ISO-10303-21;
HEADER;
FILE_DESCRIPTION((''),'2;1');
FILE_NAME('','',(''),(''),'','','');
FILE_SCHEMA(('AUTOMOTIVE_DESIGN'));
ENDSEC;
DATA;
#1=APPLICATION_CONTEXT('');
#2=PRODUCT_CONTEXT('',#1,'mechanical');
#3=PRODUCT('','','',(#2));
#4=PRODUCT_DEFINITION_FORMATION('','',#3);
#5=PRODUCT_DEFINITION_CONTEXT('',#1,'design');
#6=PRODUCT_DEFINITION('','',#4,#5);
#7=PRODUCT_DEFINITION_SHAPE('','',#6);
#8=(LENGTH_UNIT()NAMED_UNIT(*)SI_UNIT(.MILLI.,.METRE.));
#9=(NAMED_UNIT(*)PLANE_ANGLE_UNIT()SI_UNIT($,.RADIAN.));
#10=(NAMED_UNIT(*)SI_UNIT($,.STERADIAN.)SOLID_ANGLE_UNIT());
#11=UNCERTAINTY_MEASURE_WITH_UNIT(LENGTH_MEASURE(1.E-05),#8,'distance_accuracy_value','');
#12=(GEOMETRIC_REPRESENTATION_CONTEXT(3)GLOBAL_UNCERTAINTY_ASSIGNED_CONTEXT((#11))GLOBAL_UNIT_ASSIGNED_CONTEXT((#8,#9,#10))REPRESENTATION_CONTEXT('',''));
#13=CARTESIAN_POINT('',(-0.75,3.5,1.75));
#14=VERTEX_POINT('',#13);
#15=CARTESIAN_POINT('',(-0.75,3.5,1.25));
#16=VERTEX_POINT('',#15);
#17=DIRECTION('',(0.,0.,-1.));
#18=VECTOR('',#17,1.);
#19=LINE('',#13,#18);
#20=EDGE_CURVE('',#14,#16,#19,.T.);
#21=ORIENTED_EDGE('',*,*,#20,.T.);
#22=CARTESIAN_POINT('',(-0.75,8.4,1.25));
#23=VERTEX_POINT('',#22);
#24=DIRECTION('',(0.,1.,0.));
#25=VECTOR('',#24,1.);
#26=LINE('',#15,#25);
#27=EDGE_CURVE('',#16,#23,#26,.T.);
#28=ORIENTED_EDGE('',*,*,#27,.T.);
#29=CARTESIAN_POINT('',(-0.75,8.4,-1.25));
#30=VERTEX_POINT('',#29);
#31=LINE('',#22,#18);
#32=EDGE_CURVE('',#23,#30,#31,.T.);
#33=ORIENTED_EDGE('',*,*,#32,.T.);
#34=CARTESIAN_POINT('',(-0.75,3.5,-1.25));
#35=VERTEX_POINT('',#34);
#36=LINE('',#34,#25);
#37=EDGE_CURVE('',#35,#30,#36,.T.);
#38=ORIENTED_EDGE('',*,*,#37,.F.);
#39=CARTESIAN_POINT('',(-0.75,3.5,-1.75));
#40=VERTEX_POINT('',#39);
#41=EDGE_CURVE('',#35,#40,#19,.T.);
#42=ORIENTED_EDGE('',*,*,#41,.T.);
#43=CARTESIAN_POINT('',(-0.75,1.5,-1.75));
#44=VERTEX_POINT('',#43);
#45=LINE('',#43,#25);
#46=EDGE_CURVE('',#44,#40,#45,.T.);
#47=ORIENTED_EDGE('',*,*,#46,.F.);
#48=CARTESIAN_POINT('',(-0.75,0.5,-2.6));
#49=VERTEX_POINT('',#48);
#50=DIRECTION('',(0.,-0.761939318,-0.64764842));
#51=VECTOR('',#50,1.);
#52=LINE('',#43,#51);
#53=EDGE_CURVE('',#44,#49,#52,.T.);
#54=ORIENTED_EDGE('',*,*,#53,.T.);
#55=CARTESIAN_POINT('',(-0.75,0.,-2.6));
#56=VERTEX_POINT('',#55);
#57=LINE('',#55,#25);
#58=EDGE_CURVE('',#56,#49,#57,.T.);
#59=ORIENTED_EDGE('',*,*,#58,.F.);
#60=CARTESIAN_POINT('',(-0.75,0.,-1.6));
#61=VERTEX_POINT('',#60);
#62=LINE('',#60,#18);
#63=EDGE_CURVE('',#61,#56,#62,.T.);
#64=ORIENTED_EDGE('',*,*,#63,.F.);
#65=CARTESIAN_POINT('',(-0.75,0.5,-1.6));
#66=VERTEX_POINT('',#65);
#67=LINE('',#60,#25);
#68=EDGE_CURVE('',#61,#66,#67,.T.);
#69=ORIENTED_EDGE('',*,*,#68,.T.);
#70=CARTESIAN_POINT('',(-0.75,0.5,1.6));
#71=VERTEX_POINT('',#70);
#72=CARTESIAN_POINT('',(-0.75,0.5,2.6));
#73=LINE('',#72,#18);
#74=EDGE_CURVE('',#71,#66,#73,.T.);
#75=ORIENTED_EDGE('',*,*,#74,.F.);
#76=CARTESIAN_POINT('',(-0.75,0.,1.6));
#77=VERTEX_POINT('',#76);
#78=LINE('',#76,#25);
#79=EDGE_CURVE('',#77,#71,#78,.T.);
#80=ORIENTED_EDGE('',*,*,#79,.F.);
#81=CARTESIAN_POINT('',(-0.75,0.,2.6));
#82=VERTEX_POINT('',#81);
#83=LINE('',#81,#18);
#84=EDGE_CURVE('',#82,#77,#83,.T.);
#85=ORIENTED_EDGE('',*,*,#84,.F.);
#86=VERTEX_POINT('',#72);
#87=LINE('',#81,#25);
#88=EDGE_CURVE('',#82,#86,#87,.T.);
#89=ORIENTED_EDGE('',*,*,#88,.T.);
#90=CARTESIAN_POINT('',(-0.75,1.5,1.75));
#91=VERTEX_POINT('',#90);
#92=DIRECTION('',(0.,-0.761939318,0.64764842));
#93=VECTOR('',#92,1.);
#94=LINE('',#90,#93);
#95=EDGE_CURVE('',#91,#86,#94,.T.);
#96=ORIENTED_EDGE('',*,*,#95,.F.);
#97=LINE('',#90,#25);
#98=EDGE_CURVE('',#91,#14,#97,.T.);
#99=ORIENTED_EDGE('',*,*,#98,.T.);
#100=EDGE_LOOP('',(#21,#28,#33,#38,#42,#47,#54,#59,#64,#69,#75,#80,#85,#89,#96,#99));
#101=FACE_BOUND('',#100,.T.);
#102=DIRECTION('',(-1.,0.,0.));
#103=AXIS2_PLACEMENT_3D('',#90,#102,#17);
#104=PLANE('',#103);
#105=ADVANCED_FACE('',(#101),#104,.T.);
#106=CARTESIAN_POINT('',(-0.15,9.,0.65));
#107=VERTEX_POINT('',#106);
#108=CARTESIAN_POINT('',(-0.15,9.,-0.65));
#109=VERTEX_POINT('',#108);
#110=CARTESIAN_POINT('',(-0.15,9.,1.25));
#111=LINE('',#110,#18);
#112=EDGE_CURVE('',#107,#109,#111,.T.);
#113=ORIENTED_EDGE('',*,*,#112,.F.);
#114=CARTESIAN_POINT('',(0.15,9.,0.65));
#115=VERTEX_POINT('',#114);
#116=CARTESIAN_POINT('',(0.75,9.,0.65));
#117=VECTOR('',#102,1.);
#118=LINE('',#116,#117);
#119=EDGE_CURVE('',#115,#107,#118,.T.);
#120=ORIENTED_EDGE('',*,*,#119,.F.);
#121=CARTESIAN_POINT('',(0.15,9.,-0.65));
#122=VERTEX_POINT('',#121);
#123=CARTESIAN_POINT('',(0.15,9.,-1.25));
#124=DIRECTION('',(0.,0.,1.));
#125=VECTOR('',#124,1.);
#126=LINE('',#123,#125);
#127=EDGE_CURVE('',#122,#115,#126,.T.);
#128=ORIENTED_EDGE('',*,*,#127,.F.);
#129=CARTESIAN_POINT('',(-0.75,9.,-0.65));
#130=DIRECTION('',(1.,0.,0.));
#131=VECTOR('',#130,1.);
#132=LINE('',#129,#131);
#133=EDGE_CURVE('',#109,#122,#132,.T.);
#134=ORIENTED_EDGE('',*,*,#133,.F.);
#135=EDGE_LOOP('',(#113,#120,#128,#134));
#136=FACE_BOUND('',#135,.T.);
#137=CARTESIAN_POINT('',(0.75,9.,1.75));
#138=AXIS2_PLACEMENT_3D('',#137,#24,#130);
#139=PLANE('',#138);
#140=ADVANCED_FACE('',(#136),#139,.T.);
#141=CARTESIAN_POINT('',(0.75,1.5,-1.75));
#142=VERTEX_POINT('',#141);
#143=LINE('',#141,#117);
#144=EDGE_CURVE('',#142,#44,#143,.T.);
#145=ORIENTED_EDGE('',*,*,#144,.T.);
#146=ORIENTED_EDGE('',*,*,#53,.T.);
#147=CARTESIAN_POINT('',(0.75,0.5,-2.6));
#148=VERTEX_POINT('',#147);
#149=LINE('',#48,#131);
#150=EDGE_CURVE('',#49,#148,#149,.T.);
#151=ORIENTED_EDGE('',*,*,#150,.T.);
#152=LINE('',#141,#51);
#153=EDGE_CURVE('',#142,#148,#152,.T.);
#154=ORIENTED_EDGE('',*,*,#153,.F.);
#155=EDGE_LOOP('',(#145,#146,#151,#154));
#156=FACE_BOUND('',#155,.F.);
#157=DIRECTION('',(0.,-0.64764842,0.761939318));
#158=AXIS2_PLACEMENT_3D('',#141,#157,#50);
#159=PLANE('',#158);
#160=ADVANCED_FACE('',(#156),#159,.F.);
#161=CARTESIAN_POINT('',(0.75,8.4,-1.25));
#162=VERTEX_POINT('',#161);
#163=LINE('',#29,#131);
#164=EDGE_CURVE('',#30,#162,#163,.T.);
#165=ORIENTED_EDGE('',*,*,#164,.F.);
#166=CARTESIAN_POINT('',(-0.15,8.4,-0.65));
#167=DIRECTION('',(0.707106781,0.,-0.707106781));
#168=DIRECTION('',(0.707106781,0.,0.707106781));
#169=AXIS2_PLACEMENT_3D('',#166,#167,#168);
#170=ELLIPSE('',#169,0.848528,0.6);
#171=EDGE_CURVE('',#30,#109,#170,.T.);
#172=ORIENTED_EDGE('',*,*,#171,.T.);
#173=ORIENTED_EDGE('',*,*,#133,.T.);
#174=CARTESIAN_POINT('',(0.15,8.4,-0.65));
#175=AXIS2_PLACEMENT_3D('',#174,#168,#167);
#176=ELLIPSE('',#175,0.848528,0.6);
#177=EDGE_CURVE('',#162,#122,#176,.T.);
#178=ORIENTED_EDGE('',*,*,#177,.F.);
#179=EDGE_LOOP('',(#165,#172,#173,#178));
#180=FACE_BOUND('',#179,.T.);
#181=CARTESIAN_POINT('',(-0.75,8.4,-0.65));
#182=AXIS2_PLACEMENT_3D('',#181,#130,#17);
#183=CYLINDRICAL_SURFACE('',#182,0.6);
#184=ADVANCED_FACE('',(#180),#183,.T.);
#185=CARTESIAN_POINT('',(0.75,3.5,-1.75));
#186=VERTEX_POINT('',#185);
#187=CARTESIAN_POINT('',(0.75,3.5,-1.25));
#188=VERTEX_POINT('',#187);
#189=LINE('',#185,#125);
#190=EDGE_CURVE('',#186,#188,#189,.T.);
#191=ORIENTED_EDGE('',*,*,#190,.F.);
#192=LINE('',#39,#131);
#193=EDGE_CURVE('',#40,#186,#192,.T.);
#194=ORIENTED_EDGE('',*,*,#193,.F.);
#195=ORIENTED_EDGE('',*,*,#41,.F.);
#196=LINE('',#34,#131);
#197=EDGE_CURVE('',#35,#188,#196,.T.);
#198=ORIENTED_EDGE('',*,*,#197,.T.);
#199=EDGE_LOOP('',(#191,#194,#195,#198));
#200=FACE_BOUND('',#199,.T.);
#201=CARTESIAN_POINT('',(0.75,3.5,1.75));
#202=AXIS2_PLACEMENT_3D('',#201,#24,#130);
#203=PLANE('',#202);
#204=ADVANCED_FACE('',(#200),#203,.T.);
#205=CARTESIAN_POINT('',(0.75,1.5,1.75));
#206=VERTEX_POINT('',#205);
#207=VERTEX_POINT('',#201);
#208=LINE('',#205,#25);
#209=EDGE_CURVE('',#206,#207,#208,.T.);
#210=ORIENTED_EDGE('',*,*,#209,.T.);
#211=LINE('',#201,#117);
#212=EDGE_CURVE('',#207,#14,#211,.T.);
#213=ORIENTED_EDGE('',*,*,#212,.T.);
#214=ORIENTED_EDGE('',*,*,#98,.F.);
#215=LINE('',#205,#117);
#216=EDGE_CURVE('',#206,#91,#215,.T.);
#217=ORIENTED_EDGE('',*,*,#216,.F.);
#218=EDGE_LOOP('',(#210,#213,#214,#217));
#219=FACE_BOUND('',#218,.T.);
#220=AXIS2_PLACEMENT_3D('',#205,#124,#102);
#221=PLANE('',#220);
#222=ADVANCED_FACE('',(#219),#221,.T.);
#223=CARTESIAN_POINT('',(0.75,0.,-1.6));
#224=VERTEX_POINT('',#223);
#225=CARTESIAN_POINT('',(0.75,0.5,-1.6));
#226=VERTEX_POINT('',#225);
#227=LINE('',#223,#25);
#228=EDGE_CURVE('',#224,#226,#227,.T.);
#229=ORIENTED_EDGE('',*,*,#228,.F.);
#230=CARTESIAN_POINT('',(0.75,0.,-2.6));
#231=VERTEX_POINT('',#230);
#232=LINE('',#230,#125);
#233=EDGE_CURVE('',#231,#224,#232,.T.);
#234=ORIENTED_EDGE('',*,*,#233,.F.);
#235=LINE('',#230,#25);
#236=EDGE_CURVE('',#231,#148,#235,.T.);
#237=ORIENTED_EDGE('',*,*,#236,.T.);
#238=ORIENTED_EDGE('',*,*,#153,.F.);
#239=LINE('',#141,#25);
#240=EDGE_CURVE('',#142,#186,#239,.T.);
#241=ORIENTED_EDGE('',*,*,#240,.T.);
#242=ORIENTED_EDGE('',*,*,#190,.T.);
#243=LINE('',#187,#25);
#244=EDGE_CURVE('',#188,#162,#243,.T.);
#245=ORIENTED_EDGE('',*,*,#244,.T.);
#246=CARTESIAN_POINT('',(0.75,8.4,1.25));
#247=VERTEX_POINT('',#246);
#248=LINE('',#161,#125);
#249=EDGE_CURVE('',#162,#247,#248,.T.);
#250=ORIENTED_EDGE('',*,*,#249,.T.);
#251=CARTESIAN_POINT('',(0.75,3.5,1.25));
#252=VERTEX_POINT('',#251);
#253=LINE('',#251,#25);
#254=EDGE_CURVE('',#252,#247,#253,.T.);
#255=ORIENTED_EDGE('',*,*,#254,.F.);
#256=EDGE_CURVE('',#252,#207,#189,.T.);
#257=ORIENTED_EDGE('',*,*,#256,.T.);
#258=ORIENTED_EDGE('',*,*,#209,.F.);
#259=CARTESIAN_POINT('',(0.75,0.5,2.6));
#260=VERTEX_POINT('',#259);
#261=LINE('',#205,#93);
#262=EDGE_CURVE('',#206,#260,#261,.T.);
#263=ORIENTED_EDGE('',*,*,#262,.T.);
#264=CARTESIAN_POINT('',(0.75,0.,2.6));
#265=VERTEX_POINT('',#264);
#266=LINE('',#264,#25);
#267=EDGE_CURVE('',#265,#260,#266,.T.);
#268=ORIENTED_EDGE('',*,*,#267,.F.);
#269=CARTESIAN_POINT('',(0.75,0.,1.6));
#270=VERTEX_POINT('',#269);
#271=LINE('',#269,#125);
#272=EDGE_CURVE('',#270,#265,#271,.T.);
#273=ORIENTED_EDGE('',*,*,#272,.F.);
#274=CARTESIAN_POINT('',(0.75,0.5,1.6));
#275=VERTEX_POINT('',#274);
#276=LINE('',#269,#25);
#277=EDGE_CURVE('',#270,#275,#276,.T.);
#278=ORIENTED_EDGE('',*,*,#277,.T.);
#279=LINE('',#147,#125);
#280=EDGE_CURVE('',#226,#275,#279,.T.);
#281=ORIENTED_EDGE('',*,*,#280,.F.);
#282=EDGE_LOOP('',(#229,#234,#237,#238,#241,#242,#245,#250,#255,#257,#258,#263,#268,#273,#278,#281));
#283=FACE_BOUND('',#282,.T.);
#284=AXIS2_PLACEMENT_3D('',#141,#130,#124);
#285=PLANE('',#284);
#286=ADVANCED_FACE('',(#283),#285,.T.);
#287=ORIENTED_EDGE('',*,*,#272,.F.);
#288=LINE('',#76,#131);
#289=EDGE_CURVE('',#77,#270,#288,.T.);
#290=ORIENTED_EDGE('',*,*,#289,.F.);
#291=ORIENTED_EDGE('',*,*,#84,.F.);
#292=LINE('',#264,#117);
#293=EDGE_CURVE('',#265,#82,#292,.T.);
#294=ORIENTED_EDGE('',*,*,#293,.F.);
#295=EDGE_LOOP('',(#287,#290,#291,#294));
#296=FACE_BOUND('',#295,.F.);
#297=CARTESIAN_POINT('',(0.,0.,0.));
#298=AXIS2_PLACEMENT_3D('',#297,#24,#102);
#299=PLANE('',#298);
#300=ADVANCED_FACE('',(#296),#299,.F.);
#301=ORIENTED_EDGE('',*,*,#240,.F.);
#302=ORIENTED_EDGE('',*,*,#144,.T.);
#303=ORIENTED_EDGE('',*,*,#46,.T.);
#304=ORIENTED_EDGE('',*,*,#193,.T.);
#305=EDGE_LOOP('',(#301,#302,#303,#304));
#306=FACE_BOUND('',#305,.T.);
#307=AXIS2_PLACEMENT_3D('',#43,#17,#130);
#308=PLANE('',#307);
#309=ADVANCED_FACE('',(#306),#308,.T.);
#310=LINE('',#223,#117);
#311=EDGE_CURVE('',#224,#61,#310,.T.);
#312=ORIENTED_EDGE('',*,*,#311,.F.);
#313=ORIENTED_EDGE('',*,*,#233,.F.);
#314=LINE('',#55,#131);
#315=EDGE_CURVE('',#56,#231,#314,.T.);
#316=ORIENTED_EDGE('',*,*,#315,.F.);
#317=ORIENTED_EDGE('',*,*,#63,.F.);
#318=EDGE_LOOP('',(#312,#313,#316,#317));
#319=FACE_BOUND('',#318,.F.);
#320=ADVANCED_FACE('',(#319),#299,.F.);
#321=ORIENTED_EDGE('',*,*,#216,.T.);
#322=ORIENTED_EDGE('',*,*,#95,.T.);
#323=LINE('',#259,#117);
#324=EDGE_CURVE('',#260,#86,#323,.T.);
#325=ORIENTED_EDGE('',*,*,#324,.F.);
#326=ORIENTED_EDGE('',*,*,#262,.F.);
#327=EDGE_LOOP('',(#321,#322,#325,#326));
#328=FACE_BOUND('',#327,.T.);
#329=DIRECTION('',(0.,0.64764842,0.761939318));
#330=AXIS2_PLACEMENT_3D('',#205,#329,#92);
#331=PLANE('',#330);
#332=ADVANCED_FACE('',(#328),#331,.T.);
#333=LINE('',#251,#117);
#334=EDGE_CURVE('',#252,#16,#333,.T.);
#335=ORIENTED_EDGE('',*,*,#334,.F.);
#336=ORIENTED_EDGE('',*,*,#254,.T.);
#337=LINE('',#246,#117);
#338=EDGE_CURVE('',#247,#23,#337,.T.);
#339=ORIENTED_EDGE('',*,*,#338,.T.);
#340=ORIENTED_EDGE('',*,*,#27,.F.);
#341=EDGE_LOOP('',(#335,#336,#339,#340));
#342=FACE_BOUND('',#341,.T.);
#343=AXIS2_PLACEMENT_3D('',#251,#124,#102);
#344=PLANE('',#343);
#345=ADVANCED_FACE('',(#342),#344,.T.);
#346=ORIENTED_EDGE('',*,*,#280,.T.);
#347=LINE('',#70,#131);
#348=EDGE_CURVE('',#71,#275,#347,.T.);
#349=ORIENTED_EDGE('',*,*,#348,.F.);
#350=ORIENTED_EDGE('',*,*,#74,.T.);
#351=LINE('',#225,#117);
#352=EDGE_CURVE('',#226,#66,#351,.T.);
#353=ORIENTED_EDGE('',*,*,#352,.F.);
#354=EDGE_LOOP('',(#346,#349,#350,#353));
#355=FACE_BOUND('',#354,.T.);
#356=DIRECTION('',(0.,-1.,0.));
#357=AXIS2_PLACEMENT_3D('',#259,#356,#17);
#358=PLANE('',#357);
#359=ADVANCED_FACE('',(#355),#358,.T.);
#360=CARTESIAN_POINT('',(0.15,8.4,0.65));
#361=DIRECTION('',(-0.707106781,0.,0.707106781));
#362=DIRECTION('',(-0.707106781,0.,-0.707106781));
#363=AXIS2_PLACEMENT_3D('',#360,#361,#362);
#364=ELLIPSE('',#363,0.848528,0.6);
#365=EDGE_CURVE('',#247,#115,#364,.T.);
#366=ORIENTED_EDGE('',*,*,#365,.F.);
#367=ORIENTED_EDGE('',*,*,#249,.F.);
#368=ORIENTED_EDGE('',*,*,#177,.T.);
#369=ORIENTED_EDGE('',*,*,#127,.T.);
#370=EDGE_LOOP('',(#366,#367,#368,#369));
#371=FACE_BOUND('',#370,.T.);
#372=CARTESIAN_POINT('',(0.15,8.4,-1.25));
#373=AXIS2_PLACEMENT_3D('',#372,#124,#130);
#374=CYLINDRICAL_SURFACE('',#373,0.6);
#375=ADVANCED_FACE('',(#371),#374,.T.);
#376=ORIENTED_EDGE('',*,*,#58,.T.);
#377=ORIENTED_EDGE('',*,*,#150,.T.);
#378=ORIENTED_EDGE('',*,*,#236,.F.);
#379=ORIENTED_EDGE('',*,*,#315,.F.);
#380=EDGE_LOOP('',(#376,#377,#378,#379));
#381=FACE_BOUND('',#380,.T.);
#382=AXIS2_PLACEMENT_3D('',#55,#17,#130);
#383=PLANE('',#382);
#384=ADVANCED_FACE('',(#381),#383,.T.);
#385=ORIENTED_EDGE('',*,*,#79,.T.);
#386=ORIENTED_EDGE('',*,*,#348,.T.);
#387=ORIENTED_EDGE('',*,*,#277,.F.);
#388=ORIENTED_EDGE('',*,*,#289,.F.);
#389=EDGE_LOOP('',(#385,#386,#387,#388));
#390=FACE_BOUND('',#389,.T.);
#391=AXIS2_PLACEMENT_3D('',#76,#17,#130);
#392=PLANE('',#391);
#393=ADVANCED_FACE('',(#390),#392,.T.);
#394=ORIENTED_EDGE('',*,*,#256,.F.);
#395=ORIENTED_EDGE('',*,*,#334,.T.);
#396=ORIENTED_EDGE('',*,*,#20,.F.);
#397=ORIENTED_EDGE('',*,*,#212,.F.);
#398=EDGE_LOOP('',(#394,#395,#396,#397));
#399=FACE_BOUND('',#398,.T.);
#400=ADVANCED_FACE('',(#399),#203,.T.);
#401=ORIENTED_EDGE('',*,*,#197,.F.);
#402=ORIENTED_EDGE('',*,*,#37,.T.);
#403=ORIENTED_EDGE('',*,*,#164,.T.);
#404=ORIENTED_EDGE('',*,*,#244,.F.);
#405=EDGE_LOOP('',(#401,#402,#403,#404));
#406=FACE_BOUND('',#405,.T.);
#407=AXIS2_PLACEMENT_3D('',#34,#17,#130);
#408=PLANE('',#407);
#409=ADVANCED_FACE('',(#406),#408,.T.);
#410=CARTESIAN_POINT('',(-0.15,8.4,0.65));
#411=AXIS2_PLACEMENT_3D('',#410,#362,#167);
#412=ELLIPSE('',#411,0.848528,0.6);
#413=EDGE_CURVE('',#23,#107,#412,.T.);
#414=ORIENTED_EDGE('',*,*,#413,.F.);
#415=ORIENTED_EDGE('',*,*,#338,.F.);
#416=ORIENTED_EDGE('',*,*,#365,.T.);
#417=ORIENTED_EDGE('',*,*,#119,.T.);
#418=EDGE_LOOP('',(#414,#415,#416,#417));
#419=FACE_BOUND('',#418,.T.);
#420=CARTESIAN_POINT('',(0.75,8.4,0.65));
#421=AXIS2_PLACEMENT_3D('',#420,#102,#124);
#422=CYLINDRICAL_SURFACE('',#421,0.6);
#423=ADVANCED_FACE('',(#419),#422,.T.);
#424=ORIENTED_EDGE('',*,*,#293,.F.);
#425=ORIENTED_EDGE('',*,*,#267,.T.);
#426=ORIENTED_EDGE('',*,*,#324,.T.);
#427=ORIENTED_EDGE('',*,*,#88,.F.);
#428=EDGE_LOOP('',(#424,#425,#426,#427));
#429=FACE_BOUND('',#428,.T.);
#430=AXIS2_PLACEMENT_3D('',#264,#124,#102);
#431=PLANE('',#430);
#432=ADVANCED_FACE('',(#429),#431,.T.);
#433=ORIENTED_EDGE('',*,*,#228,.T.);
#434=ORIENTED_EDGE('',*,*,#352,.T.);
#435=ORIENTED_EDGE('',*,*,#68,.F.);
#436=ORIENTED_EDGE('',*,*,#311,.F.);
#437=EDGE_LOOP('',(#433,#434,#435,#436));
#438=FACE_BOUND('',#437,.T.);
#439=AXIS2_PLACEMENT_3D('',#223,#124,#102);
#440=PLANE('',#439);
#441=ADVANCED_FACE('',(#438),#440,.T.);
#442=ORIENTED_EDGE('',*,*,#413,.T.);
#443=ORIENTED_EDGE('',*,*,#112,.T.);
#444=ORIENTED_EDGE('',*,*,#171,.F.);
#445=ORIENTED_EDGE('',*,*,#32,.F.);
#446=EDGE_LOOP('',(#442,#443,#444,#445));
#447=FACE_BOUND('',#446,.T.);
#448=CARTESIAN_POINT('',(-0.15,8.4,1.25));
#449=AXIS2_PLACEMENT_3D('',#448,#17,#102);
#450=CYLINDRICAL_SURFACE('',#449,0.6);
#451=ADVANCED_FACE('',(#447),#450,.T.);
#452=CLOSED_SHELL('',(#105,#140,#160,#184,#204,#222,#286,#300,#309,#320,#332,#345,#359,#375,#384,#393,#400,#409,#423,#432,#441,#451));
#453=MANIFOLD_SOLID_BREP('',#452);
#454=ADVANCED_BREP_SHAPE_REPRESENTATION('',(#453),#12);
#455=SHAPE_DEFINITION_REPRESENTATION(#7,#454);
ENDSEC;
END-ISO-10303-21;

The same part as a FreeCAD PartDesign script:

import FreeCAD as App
import Part
import Sketcher

V = App.Vector
Q = App.Units.Quantity


def edges_at(feature, points):
    """Names of the edges that pass closest to the given points."""
    edges = feature.Shape.Edges
    near = lambda p: min(range(len(edges)), key=lambda i: edges[i].distToShape(Part.Vertex(*p))[0])
    return sorted({f"Edge{near(p) + 1}" for p in points})


def add_polygon(sketch, points):
    """Adds a closed chain of lines whose ends are joined by coincident constraints."""
    first, n = sketch.GeometryCount, len(points)
    for a, b in zip(points, points[1:] + points[:1]):
        sketch.addGeometry(Part.LineSegment(App.Vector(*a, 0), App.Vector(*b, 0)), False)
    for i in range(n):
        sketch.addConstraint(Sketcher.Constraint("Coincident", first + i, 2, first + (i + 1) % n, 1))

doc = App.newDocument("Part")
body = doc.addObject("PartDesign::Body", "Body")
body.AllowCompound = True

# Sketch on XZ plane
sketch1 = body.newObject("Sketcher::SketchObject", "Sketch")
sketch1.AttachmentSupport = (doc.getObject("XZ_Plane"), [""])
sketch1.MapMode = "FlatFace"
add_polygon(sketch1, [(-0.8, -1.6), (0.8, -1.6), (0.8, -2.6), (-0.8, -2.6)])  # lines 0-3
add_polygon(sketch1, [(0.8, 2.6), (0.8, 1.6), (-0.8, 1.6), (-0.8, 2.6)])  # lines 4-7
sketch1.addConstraint(Sketcher.Constraint("Horizontal", 0))
sketch1.addConstraint(Sketcher.Constraint("Vertical", 1))
sketch1.addConstraint(Sketcher.Constraint("Horizontal", 2))
sketch1.addConstraint(Sketcher.Constraint("Vertical", 3))
sketch1.addConstraint(Sketcher.Constraint("Vertical", 4))
sketch1.addConstraint(Sketcher.Constraint("Horizontal", 5))
sketch1.addConstraint(Sketcher.Constraint("Vertical", 6))
sketch1.addConstraint(Sketcher.Constraint("Horizontal", 7))
sketch1.addConstraint(Sketcher.Constraint("Symmetric", 3, 2, 4, 2, -1, 1))
sketch1.addConstraint(Sketcher.Constraint("Symmetric", 1, 2, 6, 2, -1, 1))
sketch1.addConstraint(Sketcher.Constraint("Vertical", 1, 2, 4, 2))
sketch1.addConstraint(Sketcher.Constraint("DistanceY", 1, 2, 1, 1, Q("1 mm")))
sketch1.addConstraint(Sketcher.Constraint("DistanceX", 0, 1, 0, 2, Q("1.5 mm")))
sketch1.addConstraint(Sketcher.Constraint("DistanceY", 0, 2, 4, 2, Q("3.2 mm")))
pad1 = body.newObject("PartDesign::Pad", "Pad")
pad1.Profile = sketch1
pad1.Length = 0.5
pad1.Reversed = True

# Sketch on YZ plane
sketch2 = body.newObject("Sketcher::SketchObject", "Sketch001")
sketch2.AttachmentSupport = (doc.getObject("YZ_Plane"), [""])
sketch2.MapMode = "FlatFace"
sketch2.AttachmentOffset = App.Placement(V(0, 0, 0.75), App.Rotation())
add_polygon(sketch2, [(1.5, 1.8), (0.5, 2.6), (0.5, -2.6), (1.5, -1.8)])  # lines 0-3
sketch2.addConstraint(Sketcher.Constraint("Vertical", 1))
sketch2.addConstraint(Sketcher.Constraint("Vertical", 3))
sketch2.addConstraint(Sketcher.Constraint("Equal", 0, 2))
sketch2.addConstraint(Sketcher.Constraint("DistanceY", 3, 1, 3, 2, Q("3.5 mm")))
sketch2.addConstraint(Sketcher.Constraint("DistanceX", 1, 2, 2, 2, Q("1 mm")))
sketch2.addConstraint(Sketcher.Constraint("DistanceY", 1, 2, 1, 1, Q("5.2 mm")))
sketch2.addConstraint(Sketcher.Constraint("DistanceX", -1, 1, 0, 2, Q("0.5 mm")))
sketch2.addConstraint(Sketcher.Constraint("DistanceY", -1, 1, 0, 2, Q("2.6 mm")))
pad2 = body.newObject("PartDesign::Pad", "Pad001")
pad2.Profile = sketch2
pad2.Length = 1.5
pad2.Reversed = True

# Sketch on XZ plane
sketch3 = body.newObject("Sketcher::SketchObject", "Sketch002")
sketch3.AttachmentSupport = (doc.getObject("XZ_Plane"), [""])
sketch3.MapMode = "FlatFace"
sketch3.AttachmentOffset = App.Placement(V(0, 0, -1.5), App.Rotation())
add_polygon(sketch3, [(-0.8, -1.8), (-0.8, 1.8), (0.8, 1.8), (0.8, -1.8)])  # lines 0-3
sketch3.addConstraint(Sketcher.Constraint("Vertical", 0))
sketch3.addConstraint(Sketcher.Constraint("Horizontal", 1))
sketch3.addConstraint(Sketcher.Constraint("Vertical", 2))
sketch3.addConstraint(Sketcher.Constraint("Horizontal", 3))
sketch3.addConstraint(Sketcher.Constraint("Symmetric", 0, 2, 2, 2, -1, 1))
sketch3.addConstraint(Sketcher.Constraint("DistanceX", 1, 1, 1, 2, Q("1.5 mm")))
sketch3.addConstraint(Sketcher.Constraint("DistanceY", 0, 1, 0, 2, Q("3.5 mm")))
pad3 = body.newObject("PartDesign::Pad", "Pad002")
pad3.Profile = sketch3
pad3.Length = 2
pad3.Reversed = True

# Sketch on XZ plane
sketch4 = body.newObject("Sketcher::SketchObject", "Sketch003")
sketch4.AttachmentSupport = (doc.getObject("XZ_Plane"), [""])
sketch4.MapMode = "FlatFace"
sketch4.AttachmentOffset = App.Placement(V(0, 0, -3.5), App.Rotation())
add_polygon(sketch4, [(0.8, -1.2), (-0.8, -1.2), (-0.8, 1.2), (0.8, 1.2)])  # lines 0-3
sketch4.addConstraint(Sketcher.Constraint("Horizontal", 0))
sketch4.addConstraint(Sketcher.Constraint("Vertical", 1))
sketch4.addConstraint(Sketcher.Constraint("Horizontal", 2))
sketch4.addConstraint(Sketcher.Constraint("Vertical", 3))
sketch4.addConstraint(Sketcher.Constraint("Symmetric", 0, 2, 2, 2, -1, 1))
sketch4.addConstraint(Sketcher.Constraint("DistanceY", 1, 1, 1, 2, Q("2.5 mm")))
sketch4.addConstraint(Sketcher.Constraint("DistanceX", 0, 2, 0, 1, Q("1.5 mm")))
pad4 = body.newObject("PartDesign::Pad", "Pad003")
pad4.Profile = sketch4
pad4.Length = 5.5
pad4.Reversed = True
doc.recompute()

fillet = body.newObject("PartDesign::Fillet", "Fillet")
fillet.Base = (pad4, edges_at(pad4, [
    (0, 9, -1.25),
    (-0.75, 9, 0),
    (0, 9, 1.25),
    (0.75, 9, 0),
]))
fillet.Radius = 0.6

doc.recompute()
